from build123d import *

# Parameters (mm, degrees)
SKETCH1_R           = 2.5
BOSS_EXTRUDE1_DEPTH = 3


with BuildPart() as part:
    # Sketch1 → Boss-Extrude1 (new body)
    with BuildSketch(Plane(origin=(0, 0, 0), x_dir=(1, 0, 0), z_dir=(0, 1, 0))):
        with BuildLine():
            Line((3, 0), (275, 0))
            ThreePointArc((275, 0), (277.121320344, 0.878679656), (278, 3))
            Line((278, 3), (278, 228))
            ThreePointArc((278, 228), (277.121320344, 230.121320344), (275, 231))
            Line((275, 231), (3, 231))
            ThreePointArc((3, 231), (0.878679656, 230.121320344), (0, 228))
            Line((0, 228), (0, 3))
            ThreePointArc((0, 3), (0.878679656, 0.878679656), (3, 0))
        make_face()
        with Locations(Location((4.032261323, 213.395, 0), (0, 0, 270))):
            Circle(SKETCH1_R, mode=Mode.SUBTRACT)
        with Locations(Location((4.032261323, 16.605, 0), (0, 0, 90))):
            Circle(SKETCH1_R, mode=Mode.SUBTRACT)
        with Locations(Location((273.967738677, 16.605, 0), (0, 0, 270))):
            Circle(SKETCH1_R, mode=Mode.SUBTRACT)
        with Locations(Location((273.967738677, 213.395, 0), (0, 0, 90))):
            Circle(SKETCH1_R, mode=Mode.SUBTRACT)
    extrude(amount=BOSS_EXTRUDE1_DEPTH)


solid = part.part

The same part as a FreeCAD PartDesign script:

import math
import FreeCAD as App
import Part
import Sketcher
Q = App.Units.Quantity

doc = App.newDocument("Part")
params = doc.addObject("Spreadsheet::Sheet", "Params")
for row, (alias, value) in enumerate([
    ("sketch1_diameter", "5 mm"),
    ("sketch1_radius", "3 mm"),
    ("sketch1_width", "272 mm"),
    ("sketch1_height", "225 mm"),
    ("pad1_length", "3 mm"),
], start=1):
    params.set(f"A{row}", alias)
    params.set(f"B{row}", "=" + value)
    params.setAlias(f"B{row}", alias)

body = doc.addObject("PartDesign::Body", "Body")

# Sketch on XZ plane
sketch1 = body.newObject("Sketcher::SketchObject", "Sketch")
sketch1.AttachmentSupport = (doc.getObject("XZ_Plane"), [""])
sketch1.MapMode = "FlatFace"
sketch1.addGeometry([
    Part.LineSegment(App.Vector(3, 0, 0), App.Vector(275, 0, 0)),  # 0
    Part.ArcOfCircle(Part.Circle(App.Vector(275, -3, 0), App.Vector(0, 0, 1), 3), math.radians(0), math.radians(90)),  # 1
    Part.LineSegment(App.Vector(278, -3, 0), App.Vector(278, -228, 0)),  # 2
    Part.ArcOfCircle(Part.Circle(App.Vector(275, -228, 0), App.Vector(0, 0, 1), 3), math.radians(-90), math.radians(0)),  # 3
    Part.LineSegment(App.Vector(275, -231, 0), App.Vector(3, -231, 0)),  # 4
    Part.ArcOfCircle(Part.Circle(App.Vector(3, -228, 0), App.Vector(0, 0, 1), 3), math.radians(180), math.radians(270)),  # 5
    Part.LineSegment(App.Vector(0, -228, 0), App.Vector(0, -3, 0)),  # 6
    Part.ArcOfCircle(Part.Circle(App.Vector(3, -3, 0), App.Vector(0, 0, 1), 3), math.radians(90), math.radians(180)),  # 7
    Part.Circle(App.Vector(4, -16.6, 0), App.Vector(0, 0, 1), 2.5),  # 8
    Part.Circle(App.Vector(274, -16.6, 0), App.Vector(0, 0, 1), 2.5),  # 9
    Part.Circle(App.Vector(4, -213.4, 0), App.Vector(0, 0, 1), 2.5),  # 10
    Part.Circle(App.Vector(274, -213.4, 0), App.Vector(0, 0, 1), 2.5),  # 11
], False)
sketch1.addConstraint([
    Sketcher.Constraint("Tangent", 0, 2, 1, 2),
    Sketcher.Constraint("Tangent", 1, 1, 2, 1),
    Sketcher.Constraint("Tangent", 2, 2, 3, 2),
    Sketcher.Constraint("Tangent", 3, 1, 4, 1),
    Sketcher.Constraint("Tangent", 4, 2, 5, 2),
    Sketcher.Constraint("Tangent", 5, 1, 6, 1),
    Sketcher.Constraint("Tangent", 6, 2, 7, 2),
    Sketcher.Constraint("Tangent", 7, 1, 0, 1),
    Sketcher.Constraint("Horizontal", 0),
    Sketcher.Constraint("Vertical", 2),
    Sketcher.Constraint("Horizontal", 4),
    Sketcher.Constraint("Vertical", 6),
    Sketcher.Constraint("Equal", 1, 3),
    Sketcher.Constraint("Equal", 3, 5),
    Sketcher.Constraint("Equal", 5, 7),
    Sketcher.Constraint("Equal", 8, 9),
    Sketcher.Constraint("Equal", 9, 10),
    Sketcher.Constraint("Equal", 10, 11),
    Sketcher.Constraint("PointOnObject", 0, 2, -1),
    Sketcher.Constraint("PointOnObject", 5, 1, -2),
    Sketcher.Constraint("Horizontal", 8, 3, 9, 3),
    Sketcher.Constraint("Horizontal", 10, 3, 11, 3),
    Sketcher.Constraint("Vertical", 8, 3, 10, 3),
    Sketcher.Constraint("Vertical", 9, 3, 11, 3),
    Sketcher.Constraint("Diameter", 8, Q("5 mm")),
    Sketcher.Constraint("Radius", 1, Q("3 mm")),
    Sketcher.Constraint("DistanceX", 0, 1, 0, 2, Q("272 mm")),
    Sketcher.Constraint("DistanceY", 2, 2, 2, 1, Q("225 mm")),
    Sketcher.Constraint("DistanceY", 10, 3, 8, 3, Q("196.79 mm")),
    Sketcher.Constraint("DistanceY", 8, 3, -1, 1, Q("16.605 mm")),
    Sketcher.Constraint("DistanceX", -1, 1, 8, 3, Q("4.032261 mm")),
    Sketcher.Constraint("DistanceX", -1, 1, 9, 3, Q("273.967739 mm")),
])
sketch1.setExpression("Constraints[24]", "Params.sketch1_diameter")
sketch1.setExpression("Constraints[25]", "Params.sketch1_radius")
sketch1.setExpression("Constraints[26]", "Params.sketch1_width")
sketch1.setExpression("Constraints[27]", "Params.sketch1_height")
pad1 = body.newObject("PartDesign::Pad", "Pad")
pad1.Profile = sketch1
pad1.setExpression("Length", "Params.pad1_length")
pad1.Reversed = True

doc.recompute()
